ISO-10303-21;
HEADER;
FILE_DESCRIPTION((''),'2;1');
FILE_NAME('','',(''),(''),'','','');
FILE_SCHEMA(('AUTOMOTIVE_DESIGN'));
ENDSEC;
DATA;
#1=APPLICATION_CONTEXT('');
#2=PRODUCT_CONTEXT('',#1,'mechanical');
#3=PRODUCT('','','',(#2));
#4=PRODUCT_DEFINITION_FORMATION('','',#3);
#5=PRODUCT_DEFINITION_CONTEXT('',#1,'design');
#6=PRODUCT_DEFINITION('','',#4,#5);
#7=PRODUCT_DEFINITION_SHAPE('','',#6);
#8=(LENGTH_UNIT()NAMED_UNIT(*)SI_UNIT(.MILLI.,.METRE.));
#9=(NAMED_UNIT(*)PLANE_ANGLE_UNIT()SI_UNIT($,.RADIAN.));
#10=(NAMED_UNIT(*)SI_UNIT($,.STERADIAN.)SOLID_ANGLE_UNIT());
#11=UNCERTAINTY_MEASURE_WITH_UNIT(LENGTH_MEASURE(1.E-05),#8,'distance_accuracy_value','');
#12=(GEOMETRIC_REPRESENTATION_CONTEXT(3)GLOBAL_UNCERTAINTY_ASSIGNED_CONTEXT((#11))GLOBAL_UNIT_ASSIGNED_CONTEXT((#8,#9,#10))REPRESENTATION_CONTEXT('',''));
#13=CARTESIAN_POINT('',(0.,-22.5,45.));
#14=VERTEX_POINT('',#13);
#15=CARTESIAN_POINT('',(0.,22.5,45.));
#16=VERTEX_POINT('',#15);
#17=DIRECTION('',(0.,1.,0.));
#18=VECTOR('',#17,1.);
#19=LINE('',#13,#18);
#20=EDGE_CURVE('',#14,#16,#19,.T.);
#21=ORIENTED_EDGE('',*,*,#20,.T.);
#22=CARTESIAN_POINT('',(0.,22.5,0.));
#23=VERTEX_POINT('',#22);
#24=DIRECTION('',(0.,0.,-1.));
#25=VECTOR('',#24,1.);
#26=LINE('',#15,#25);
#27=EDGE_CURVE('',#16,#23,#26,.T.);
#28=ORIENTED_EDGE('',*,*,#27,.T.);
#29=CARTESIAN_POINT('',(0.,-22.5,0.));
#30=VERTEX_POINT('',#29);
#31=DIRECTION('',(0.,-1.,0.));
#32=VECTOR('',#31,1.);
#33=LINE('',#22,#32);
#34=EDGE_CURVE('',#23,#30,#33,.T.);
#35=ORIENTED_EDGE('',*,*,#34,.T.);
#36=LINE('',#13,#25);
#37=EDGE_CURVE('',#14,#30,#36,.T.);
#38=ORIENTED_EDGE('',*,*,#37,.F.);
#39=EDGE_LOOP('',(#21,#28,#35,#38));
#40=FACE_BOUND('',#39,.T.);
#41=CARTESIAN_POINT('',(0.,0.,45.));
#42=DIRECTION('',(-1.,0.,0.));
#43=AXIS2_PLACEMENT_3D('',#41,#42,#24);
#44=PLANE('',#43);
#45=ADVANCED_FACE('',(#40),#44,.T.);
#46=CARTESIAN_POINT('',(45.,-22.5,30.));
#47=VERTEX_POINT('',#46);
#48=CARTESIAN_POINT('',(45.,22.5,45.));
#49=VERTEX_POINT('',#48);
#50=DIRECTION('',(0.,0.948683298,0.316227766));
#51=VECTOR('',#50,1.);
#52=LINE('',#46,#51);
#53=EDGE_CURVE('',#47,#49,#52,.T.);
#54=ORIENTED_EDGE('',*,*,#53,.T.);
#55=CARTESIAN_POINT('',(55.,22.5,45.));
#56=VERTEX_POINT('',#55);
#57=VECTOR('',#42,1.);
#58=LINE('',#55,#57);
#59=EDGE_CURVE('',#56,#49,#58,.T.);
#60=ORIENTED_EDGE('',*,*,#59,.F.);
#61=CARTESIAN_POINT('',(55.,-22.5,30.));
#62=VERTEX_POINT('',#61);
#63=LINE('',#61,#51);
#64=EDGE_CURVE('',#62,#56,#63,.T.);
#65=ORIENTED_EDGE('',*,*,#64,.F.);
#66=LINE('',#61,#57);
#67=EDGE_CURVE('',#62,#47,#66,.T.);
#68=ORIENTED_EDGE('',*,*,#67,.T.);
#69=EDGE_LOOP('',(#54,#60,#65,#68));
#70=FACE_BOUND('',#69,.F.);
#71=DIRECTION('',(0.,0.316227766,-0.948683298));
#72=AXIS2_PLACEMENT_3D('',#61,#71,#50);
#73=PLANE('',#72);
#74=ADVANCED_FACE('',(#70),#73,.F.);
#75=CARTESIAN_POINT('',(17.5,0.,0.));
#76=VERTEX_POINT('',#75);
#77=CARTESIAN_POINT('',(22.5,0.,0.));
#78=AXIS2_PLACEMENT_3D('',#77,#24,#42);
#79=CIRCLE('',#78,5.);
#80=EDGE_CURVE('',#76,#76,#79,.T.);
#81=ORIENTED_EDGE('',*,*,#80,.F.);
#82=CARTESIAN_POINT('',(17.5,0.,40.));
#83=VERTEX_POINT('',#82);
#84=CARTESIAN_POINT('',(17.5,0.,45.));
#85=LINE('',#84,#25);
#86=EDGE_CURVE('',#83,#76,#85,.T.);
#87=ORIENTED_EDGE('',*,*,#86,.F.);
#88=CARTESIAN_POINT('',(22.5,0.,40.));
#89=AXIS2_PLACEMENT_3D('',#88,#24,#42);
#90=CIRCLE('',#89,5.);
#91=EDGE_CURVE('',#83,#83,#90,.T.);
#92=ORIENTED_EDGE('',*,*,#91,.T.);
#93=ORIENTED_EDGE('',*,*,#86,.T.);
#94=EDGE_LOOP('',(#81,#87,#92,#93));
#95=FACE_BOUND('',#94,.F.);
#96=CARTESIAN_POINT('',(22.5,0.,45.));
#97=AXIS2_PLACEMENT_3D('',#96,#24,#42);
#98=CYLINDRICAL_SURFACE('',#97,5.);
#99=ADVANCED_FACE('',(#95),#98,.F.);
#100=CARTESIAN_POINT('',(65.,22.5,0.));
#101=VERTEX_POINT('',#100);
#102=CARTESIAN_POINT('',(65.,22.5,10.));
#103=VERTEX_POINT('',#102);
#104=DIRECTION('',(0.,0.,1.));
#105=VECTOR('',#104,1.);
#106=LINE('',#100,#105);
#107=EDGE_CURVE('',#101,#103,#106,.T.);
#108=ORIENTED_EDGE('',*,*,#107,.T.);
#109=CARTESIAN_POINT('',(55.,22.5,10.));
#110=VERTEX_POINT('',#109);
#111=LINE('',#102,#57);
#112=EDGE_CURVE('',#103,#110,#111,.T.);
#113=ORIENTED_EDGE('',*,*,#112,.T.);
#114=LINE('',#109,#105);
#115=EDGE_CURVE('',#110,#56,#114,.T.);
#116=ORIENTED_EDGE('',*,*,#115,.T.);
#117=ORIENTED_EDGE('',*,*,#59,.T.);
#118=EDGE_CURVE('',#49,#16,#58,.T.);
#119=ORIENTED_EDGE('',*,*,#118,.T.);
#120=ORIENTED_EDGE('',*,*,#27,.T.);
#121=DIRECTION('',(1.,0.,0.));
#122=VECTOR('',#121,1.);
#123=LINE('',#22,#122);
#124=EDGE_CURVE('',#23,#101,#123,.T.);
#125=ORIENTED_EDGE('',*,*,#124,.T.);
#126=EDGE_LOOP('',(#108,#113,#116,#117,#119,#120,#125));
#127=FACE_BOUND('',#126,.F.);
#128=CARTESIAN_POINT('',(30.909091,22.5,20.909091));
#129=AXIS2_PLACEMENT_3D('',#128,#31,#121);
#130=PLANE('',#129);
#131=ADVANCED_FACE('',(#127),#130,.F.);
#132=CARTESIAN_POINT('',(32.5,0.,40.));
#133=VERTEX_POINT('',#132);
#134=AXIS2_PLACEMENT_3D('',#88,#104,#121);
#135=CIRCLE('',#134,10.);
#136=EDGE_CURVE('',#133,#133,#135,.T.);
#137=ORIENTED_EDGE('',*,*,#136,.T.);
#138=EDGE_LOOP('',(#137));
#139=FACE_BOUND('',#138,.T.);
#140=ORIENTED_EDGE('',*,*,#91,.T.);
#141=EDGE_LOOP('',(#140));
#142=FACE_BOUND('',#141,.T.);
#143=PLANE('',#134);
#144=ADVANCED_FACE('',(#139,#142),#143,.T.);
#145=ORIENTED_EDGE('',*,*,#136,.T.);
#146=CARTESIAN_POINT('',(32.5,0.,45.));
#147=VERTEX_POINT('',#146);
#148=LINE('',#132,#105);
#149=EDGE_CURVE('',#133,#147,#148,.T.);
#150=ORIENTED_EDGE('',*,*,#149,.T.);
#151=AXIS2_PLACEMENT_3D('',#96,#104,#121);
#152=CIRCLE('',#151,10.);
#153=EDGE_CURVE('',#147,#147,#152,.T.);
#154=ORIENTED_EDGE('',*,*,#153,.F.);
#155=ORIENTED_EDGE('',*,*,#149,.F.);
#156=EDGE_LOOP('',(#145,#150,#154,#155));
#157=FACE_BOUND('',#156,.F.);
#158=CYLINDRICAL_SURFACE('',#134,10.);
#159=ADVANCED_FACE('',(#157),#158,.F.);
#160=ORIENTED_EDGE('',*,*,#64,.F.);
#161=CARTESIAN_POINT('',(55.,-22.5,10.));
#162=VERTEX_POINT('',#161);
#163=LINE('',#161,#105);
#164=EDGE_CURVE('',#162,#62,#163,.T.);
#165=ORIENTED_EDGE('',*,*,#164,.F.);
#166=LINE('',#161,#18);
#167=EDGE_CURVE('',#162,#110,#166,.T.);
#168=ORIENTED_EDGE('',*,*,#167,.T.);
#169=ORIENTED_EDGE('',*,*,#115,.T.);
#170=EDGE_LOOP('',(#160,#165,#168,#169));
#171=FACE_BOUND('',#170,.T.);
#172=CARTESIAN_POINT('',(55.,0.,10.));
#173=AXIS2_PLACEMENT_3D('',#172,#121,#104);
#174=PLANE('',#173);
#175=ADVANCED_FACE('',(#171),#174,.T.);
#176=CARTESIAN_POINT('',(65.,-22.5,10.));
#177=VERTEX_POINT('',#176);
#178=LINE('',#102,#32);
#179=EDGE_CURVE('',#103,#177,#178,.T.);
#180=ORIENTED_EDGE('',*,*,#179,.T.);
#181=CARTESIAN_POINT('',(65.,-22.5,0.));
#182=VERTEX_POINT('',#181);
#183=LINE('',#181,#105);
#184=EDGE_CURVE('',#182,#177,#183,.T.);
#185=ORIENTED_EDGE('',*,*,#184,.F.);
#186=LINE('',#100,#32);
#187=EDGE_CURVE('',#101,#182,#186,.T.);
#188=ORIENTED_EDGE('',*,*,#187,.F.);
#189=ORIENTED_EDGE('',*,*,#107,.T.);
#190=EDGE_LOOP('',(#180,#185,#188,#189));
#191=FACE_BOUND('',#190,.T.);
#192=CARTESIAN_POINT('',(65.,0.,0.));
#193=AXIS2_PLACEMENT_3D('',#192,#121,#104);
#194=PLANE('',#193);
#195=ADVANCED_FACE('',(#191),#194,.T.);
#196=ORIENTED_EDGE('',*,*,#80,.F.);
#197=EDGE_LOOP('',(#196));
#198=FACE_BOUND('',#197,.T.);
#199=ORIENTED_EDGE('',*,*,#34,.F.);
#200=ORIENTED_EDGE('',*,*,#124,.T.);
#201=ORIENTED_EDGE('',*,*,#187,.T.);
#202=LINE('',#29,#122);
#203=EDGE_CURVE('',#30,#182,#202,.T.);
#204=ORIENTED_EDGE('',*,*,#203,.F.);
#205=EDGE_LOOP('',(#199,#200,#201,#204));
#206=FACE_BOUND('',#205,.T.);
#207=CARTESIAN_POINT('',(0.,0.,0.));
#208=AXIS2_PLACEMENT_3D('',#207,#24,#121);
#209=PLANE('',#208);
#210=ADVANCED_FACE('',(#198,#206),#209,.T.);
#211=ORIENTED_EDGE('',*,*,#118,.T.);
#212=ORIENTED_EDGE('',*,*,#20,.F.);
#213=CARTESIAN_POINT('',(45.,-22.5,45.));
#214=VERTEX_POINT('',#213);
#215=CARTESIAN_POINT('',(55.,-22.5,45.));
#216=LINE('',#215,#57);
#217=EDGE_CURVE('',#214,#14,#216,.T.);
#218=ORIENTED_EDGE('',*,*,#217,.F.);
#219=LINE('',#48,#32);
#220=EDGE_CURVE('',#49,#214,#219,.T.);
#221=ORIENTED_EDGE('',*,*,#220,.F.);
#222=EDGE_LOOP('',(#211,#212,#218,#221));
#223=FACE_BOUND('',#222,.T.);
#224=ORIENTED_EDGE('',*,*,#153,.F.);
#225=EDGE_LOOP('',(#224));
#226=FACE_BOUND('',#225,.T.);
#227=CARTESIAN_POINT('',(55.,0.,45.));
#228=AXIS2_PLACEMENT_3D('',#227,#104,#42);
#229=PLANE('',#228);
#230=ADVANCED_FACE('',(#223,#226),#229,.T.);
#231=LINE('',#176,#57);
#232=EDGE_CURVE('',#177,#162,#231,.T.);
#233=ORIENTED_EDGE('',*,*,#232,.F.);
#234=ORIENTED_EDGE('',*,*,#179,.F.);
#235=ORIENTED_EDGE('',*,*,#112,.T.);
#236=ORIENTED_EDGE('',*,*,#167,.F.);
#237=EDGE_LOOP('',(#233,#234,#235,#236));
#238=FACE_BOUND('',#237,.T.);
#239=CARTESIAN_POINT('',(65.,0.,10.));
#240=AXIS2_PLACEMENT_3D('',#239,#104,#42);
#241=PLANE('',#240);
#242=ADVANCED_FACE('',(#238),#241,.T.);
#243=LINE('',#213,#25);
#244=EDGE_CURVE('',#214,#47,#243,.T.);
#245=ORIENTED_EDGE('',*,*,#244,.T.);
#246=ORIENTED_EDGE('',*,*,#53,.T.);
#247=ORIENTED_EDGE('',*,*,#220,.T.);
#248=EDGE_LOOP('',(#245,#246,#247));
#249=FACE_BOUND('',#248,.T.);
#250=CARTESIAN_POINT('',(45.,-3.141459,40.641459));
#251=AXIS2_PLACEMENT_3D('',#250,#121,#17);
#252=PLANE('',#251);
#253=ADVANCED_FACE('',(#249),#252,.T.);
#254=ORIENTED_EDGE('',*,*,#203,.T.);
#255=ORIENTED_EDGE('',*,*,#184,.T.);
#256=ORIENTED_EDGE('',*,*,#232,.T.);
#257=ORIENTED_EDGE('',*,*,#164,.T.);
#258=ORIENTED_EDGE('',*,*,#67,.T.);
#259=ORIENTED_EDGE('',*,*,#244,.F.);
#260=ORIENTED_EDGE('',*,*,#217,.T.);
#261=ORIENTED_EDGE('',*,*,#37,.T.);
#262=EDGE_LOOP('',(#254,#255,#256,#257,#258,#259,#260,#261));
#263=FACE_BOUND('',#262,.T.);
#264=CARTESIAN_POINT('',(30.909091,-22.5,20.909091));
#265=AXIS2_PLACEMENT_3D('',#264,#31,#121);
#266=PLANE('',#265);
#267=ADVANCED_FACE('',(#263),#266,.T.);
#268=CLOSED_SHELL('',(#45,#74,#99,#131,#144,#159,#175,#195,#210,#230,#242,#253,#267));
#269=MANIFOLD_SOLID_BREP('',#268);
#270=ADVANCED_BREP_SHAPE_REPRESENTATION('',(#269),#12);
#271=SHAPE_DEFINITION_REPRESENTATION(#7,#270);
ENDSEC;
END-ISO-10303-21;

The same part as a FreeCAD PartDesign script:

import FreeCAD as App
import Part
import Sketcher
Q = App.Units.Quantity


def add_polygon(sketch, points):
    """Adds a closed chain of lines whose ends are joined by coincident constraints."""
    first, n = sketch.GeometryCount, len(points)
    for a, b in zip(points, points[1:] + points[:1]):
        sketch.addGeometry(Part.LineSegment(App.Vector(*a, 0), App.Vector(*b, 0)), False)
    for i in range(n):
        sketch.addConstraint(Sketcher.Constraint("Coincident", first + i, 2, first + (i + 1) % n, 1))

doc = App.newDocument("Part")
body = doc.addObject("PartDesign::Body", "Body")

# Sketch on XZ plane
sketch1 = doc.addObject("Sketcher::SketchObject", "Sketch")
body.addObject(sketch1)
sketch1.AttachmentSupport = (doc.XZ_Plane, [""])
sketch1.MapMode = "FlatFace"
add_polygon(sketch1, [(0, 45), (0, 0), (65, 0), (65, 10), (55, 10), (55, 45)])  # lines 0-5
sketch1.addConstraint(Sketcher.Constraint("Vertical", 0))
sketch1.addConstraint(Sketcher.Constraint("Horizontal", 1))
sketch1.addConstraint(Sketcher.Constraint("Vertical", 2))
sketch1.addConstraint(Sketcher.Constraint("Horizontal", 3))
sketch1.addConstraint(Sketcher.Constraint("Vertical", 4))
sketch1.addConstraint(Sketcher.Constraint("Horizontal", 5))
sketch1.addConstraint(Sketcher.Constraint("Coincident", 0, 2, -1, 1))
sketch1.addConstraint(Sketcher.Constraint("Equal", 3, 2))
sketch1.addConstraint(Sketcher.Constraint("DistanceX", 1, 1, 1, 2, Q("65 mm")))
sketch1.addConstraint(Sketcher.Constraint("DistanceX", 3, 2, 3, 1, Q("10 mm")))
sketch1.addConstraint(Sketcher.Constraint("DistanceY", 0, 2, 0, 1, Q("45 mm")))
pad1 = doc.addObject("PartDesign::Pad", "Pad")
body.addObject(pad1)
pad1.Profile = sketch1
pad1.Length = 45
pad1.Midplane = True

# Sketch on YZ plane
sketch2 = doc.addObject("Sketcher::SketchObject", "Sketch001")
body.addObject(sketch2)
sketch2.AttachmentSupport = (doc.YZ_Plane, [""])
sketch2.MapMode = "FlatFace"
sketch2.AttachmentOffset = App.Placement(App.Vector(0, 0, 55), App.Rotation())
add_polygon(sketch2, [(-22, 45), (-22, 30), (22, 45)])  # lines 0-2
sketch2.addConstraint(Sketcher.Constraint("Vertical", 0))
sketch2.addConstraint(Sketcher.Constraint("Horizontal", 2))
sketch2.addConstraint(Sketcher.Constraint("DistanceX", 2, 2, 2, 1, Q("45 mm")))
sketch2.addConstraint(Sketcher.Constraint("DistanceY", 0, 2, 0, 1, Q("15 mm")))
sketch2.addConstraint(Sketcher.Constraint("DistanceY", -1, 1, 0, 2, Q("30 mm")))
sketch2.addConstraint(Sketcher.Constraint("DistanceX", 0, 2, -1, 1, Q("22.5 mm")))
pocket1 = doc.addObject("PartDesign::Pocket", "Pocket")
body.addObject(pocket1)
pocket1.Profile = sketch2
pocket1.Length = 10

# Sketch on XY plane
sketch3 = doc.addObject("Sketcher::SketchObject", "Sketch002")
body.addObject(sketch3)
sketch3.AttachmentSupport = (doc.XY_Plane, [""])
sketch3.MapMode = "FlatFace"
sketch3.AttachmentOffset = App.Placement(App.Vector(0, 0, 45), App.Rotation())
sketch3.addGeometry(Part.Circle(App.Vector(22, 0, 0), App.Vector(0, 0, 1), 5), False)
sketch3.addConstraint(Sketcher.Constraint("PointOnObject", 0, 3, -1))
sketch3.addConstraint(Sketcher.Constraint("Diameter", 0, Q("10 mm")))
sketch3.addConstraint(Sketcher.Constraint("DistanceX", -1, 1, 0, 3, Q("22.5 mm")))
doc.recompute()
hole = doc.addObject("PartDesign::Hole", "Hole")
body.addObject(hole)
hole.Profile = sketch3
hole.ThreadType = "None"
hole.Diameter = 10
hole.DepthType = "ThroughAll"
hole.HoleCutType = "Counterbore"
hole.HoleCutDiameter = 20
hole.HoleCutDepth = 5

doc.recompute()
